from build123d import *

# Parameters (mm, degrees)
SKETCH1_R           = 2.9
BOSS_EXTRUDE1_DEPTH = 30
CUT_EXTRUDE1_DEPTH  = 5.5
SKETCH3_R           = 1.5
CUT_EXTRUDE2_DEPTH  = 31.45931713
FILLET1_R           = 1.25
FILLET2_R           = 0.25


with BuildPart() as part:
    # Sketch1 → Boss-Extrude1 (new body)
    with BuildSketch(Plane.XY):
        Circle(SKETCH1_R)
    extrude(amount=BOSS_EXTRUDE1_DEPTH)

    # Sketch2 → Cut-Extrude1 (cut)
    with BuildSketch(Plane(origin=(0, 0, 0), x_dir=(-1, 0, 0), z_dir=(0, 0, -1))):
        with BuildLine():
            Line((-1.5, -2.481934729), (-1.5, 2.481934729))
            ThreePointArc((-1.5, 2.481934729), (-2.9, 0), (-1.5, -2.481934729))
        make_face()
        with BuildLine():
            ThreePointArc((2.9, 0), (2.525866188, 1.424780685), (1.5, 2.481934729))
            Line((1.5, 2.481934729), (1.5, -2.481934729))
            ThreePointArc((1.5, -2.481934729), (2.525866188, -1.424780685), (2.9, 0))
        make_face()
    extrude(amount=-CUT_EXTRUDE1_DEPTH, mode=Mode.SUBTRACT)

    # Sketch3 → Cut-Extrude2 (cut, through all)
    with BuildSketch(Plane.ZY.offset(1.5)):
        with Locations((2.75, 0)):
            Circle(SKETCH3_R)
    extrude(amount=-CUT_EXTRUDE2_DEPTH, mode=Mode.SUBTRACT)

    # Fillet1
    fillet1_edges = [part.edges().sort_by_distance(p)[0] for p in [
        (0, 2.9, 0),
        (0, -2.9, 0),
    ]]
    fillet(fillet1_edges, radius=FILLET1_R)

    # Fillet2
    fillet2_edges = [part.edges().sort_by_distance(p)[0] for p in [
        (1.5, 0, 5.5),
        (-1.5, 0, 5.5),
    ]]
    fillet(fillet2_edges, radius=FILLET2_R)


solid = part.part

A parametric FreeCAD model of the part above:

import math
import FreeCAD as App
import Part
import Sketcher


def edges_at(feature, points):
    """Names of the edges that pass closest to the given points."""
    edges = feature.Shape.Edges
    near = lambda p: min(range(len(edges)), key=lambda i: edges[i].distToShape(Part.Vertex(*p))[0])
    return sorted({f"Edge{near(p) + 1}" for p in points})

doc = App.newDocument("Part")
body = doc.addObject("PartDesign::Body", "Body")

# Sketch on XY plane
sketch1 = doc.addObject("Sketcher::SketchObject", "Sketch")
body.addObject(sketch1)
sketch1.AttachmentSupport = (doc.XY_Plane, [""])
sketch1.MapMode = "FlatFace"
sketch1.addGeometry(Part.Circle(App.Vector(0, 0, 0), App.Vector(0, 0, 1), 2.9), False)
sketch1.addConstraint([
    Sketcher.Constraint("Coincident", 0, 3, -1, 1),
    Sketcher.Constraint("Diameter", 0, 5.8),
])
pad1 = doc.addObject("PartDesign::Pad", "Pad")
body.addObject(pad1)
pad1.Profile = sketch1
pad1.Length = 30

# Sketch on XY plane
sketch2 = doc.addObject("Sketcher::SketchObject", "Sketch001")
body.addObject(sketch2)
sketch2.AttachmentSupport = (doc.XY_Plane, [""])
sketch2.MapMode = "FlatFace"
sketch2.addGeometry([
    Part.LineSegment(App.Vector(1.5, -2.481935, 0), App.Vector(1.5, 2.481935, 0)),  # 0
    Part.ArcOfCircle(Part.Circle(App.Vector(0, 0, 0), App.Vector(0, 0, 1), 2.9), math.radians(-58.85261), math.radians(58.85261)),  # 1
    Part.ArcOfCircle(Part.Circle(App.Vector(0, 0, 0), App.Vector(0, 0, 1), 2.9), math.radians(121.14739), math.radians(180)),  # 2
    Part.LineSegment(App.Vector(-1.5, 2.481935, 0), App.Vector(-1.5, -2.481935, 0)),  # 3
    Part.ArcOfCircle(Part.Circle(App.Vector(0, 0, 0), App.Vector(0, 0, 1), 2.9), math.radians(180), math.radians(238.85261)),  # 4
], False)
sketch2.addConstraint([
    Sketcher.Constraint("Coincident", 0, 1, 1, 1),
    Sketcher.Constraint("Coincident", 1, 2, 0, 2),
    Sketcher.Constraint("Coincident", 2, 1, 3, 1),
    Sketcher.Constraint("Coincident", 3, 2, 4, 2),
    Sketcher.Constraint("Tangent", 4, 1, 2, 2),
    Sketcher.Constraint("Vertical", 0),
    Sketcher.Constraint("Vertical", 3),
    Sketcher.Constraint("Coincident", 1, 3, -1, 1),
    Sketcher.Constraint("Coincident", 2, 3, -1, 1),
    Sketcher.Constraint("Equal", 1, 2),
    Sketcher.Constraint("Equal", 2, 4),
    Sketcher.Constraint("PointOnObject", 4, 1, -1),
    Sketcher.Constraint("Horizontal", 1, 2, 2, 1),
    Sketcher.Constraint("Radius", 1, 2.9),
    Sketcher.Constraint("DistanceX", 2, 1, 1, 2, 3.0),
])
pocket1 = doc.addObject("PartDesign::Pocket", "Pocket")
body.addObject(pocket1)
pocket1.Profile = sketch2
pocket1.Length = 5.5
pocket1.Reversed = True

# Sketch on YZ plane
sketch3 = doc.addObject("Sketcher::SketchObject", "Sketch002")
body.addObject(sketch3)
sketch3.AttachmentSupport = (doc.YZ_Plane, [""])
sketch3.MapMode = "FlatFace"
sketch3.AttachmentOffset = App.Placement(App.Vector(0, 0, -1.5), App.Rotation())
sketch3.addGeometry(Part.Circle(App.Vector(0, 2.75, 0), App.Vector(0, 0, 1), 1.5), False)
sketch3.addConstraint([
    Sketcher.Constraint("PointOnObject", 0, 3, -2),
    Sketcher.Constraint("Diameter", 0, 3.0),
    Sketcher.Constraint("DistanceY", -1, 1, 0, 3, 2.75),
])
pocket2 = doc.addObject("PartDesign::Pocket", "Pocket001")
body.addObject(pocket2)
pocket2.Profile = sketch3
pocket2.Type = "ThroughAll"
pocket2.Reversed = True
doc.recompute()

fillet = doc.addObject("PartDesign::Fillet", "Fillet")
body.addObject(fillet)
fillet.Base = (pocket2, edges_at(pocket2, [(0, 2.9, 0), (0, -2.9, 0)]))
fillet.Radius = 1.25
doc.recompute()

fillet2 = doc.addObject("PartDesign::Fillet", "Fillet001")
body.addObject(fillet2)
fillet2.Base = (fillet, edges_at(fillet, [(1.5, 0, 5.5), (-1.5, 0, 5.5)]))
fillet2.Radius = 0.25

doc.recompute()
